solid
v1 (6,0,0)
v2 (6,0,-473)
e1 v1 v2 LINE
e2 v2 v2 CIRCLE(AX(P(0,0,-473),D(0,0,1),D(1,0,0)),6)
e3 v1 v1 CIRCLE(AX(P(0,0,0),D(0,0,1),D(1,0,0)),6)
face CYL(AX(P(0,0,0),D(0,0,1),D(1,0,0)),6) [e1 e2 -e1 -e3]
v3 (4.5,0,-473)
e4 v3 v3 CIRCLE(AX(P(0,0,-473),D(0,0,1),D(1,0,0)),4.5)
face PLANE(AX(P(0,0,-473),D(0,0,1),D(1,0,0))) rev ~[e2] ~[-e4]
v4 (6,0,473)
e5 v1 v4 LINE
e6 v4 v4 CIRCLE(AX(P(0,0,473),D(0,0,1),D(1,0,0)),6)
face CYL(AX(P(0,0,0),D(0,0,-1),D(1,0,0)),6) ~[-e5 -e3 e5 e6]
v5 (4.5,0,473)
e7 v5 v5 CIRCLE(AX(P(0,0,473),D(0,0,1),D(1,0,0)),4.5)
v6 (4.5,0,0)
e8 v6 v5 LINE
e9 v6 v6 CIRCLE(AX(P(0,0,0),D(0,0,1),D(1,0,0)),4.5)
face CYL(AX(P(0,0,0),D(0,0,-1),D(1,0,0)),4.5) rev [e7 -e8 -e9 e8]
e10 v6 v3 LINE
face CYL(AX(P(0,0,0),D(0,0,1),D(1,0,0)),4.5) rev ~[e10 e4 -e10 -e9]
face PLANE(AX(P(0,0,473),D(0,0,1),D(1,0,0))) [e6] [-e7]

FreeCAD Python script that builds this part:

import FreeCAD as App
import Part
import Sketcher
from FreeCAD import Vector
Q = App.Units.Quantity

doc = App.newDocument("Part")
body = doc.addObject("PartDesign::Body", "Body")

sketch1 = doc.addObject("Sketcher::SketchObject", "Sketch")
body.addObject(sketch1)
sketch1.AttachmentSupport = (doc.XY_Plane, [""])
sketch1.MapMode = "FlatFace"
sketch1.addGeometry(Part.Circle(Vector(0, 0, 0), Vector(0, 0, 1), 6), False)
sketch1.addGeometry(Part.Circle(Vector(0, 0, 0), Vector(0, 0, 1), 4.5), False)
sketch1.addConstraint(Sketcher.Constraint("Coincident", 0, 3, -1, 1))
sketch1.addConstraint(Sketcher.Constraint("Coincident", 1, 3, -1, 1))
sketch1.addConstraint(Sketcher.Constraint("Diameter", 0, Q("12 mm")))
sketch1.addConstraint(Sketcher.Constraint("Diameter", 1, Q("9 mm")))
pad1 = doc.addObject("PartDesign::Pad", "Pad")
body.addObject(pad1)
pad1.Profile = sketch1
pad1.Length = 946
pad1.Midplane = True

doc.recompute()
